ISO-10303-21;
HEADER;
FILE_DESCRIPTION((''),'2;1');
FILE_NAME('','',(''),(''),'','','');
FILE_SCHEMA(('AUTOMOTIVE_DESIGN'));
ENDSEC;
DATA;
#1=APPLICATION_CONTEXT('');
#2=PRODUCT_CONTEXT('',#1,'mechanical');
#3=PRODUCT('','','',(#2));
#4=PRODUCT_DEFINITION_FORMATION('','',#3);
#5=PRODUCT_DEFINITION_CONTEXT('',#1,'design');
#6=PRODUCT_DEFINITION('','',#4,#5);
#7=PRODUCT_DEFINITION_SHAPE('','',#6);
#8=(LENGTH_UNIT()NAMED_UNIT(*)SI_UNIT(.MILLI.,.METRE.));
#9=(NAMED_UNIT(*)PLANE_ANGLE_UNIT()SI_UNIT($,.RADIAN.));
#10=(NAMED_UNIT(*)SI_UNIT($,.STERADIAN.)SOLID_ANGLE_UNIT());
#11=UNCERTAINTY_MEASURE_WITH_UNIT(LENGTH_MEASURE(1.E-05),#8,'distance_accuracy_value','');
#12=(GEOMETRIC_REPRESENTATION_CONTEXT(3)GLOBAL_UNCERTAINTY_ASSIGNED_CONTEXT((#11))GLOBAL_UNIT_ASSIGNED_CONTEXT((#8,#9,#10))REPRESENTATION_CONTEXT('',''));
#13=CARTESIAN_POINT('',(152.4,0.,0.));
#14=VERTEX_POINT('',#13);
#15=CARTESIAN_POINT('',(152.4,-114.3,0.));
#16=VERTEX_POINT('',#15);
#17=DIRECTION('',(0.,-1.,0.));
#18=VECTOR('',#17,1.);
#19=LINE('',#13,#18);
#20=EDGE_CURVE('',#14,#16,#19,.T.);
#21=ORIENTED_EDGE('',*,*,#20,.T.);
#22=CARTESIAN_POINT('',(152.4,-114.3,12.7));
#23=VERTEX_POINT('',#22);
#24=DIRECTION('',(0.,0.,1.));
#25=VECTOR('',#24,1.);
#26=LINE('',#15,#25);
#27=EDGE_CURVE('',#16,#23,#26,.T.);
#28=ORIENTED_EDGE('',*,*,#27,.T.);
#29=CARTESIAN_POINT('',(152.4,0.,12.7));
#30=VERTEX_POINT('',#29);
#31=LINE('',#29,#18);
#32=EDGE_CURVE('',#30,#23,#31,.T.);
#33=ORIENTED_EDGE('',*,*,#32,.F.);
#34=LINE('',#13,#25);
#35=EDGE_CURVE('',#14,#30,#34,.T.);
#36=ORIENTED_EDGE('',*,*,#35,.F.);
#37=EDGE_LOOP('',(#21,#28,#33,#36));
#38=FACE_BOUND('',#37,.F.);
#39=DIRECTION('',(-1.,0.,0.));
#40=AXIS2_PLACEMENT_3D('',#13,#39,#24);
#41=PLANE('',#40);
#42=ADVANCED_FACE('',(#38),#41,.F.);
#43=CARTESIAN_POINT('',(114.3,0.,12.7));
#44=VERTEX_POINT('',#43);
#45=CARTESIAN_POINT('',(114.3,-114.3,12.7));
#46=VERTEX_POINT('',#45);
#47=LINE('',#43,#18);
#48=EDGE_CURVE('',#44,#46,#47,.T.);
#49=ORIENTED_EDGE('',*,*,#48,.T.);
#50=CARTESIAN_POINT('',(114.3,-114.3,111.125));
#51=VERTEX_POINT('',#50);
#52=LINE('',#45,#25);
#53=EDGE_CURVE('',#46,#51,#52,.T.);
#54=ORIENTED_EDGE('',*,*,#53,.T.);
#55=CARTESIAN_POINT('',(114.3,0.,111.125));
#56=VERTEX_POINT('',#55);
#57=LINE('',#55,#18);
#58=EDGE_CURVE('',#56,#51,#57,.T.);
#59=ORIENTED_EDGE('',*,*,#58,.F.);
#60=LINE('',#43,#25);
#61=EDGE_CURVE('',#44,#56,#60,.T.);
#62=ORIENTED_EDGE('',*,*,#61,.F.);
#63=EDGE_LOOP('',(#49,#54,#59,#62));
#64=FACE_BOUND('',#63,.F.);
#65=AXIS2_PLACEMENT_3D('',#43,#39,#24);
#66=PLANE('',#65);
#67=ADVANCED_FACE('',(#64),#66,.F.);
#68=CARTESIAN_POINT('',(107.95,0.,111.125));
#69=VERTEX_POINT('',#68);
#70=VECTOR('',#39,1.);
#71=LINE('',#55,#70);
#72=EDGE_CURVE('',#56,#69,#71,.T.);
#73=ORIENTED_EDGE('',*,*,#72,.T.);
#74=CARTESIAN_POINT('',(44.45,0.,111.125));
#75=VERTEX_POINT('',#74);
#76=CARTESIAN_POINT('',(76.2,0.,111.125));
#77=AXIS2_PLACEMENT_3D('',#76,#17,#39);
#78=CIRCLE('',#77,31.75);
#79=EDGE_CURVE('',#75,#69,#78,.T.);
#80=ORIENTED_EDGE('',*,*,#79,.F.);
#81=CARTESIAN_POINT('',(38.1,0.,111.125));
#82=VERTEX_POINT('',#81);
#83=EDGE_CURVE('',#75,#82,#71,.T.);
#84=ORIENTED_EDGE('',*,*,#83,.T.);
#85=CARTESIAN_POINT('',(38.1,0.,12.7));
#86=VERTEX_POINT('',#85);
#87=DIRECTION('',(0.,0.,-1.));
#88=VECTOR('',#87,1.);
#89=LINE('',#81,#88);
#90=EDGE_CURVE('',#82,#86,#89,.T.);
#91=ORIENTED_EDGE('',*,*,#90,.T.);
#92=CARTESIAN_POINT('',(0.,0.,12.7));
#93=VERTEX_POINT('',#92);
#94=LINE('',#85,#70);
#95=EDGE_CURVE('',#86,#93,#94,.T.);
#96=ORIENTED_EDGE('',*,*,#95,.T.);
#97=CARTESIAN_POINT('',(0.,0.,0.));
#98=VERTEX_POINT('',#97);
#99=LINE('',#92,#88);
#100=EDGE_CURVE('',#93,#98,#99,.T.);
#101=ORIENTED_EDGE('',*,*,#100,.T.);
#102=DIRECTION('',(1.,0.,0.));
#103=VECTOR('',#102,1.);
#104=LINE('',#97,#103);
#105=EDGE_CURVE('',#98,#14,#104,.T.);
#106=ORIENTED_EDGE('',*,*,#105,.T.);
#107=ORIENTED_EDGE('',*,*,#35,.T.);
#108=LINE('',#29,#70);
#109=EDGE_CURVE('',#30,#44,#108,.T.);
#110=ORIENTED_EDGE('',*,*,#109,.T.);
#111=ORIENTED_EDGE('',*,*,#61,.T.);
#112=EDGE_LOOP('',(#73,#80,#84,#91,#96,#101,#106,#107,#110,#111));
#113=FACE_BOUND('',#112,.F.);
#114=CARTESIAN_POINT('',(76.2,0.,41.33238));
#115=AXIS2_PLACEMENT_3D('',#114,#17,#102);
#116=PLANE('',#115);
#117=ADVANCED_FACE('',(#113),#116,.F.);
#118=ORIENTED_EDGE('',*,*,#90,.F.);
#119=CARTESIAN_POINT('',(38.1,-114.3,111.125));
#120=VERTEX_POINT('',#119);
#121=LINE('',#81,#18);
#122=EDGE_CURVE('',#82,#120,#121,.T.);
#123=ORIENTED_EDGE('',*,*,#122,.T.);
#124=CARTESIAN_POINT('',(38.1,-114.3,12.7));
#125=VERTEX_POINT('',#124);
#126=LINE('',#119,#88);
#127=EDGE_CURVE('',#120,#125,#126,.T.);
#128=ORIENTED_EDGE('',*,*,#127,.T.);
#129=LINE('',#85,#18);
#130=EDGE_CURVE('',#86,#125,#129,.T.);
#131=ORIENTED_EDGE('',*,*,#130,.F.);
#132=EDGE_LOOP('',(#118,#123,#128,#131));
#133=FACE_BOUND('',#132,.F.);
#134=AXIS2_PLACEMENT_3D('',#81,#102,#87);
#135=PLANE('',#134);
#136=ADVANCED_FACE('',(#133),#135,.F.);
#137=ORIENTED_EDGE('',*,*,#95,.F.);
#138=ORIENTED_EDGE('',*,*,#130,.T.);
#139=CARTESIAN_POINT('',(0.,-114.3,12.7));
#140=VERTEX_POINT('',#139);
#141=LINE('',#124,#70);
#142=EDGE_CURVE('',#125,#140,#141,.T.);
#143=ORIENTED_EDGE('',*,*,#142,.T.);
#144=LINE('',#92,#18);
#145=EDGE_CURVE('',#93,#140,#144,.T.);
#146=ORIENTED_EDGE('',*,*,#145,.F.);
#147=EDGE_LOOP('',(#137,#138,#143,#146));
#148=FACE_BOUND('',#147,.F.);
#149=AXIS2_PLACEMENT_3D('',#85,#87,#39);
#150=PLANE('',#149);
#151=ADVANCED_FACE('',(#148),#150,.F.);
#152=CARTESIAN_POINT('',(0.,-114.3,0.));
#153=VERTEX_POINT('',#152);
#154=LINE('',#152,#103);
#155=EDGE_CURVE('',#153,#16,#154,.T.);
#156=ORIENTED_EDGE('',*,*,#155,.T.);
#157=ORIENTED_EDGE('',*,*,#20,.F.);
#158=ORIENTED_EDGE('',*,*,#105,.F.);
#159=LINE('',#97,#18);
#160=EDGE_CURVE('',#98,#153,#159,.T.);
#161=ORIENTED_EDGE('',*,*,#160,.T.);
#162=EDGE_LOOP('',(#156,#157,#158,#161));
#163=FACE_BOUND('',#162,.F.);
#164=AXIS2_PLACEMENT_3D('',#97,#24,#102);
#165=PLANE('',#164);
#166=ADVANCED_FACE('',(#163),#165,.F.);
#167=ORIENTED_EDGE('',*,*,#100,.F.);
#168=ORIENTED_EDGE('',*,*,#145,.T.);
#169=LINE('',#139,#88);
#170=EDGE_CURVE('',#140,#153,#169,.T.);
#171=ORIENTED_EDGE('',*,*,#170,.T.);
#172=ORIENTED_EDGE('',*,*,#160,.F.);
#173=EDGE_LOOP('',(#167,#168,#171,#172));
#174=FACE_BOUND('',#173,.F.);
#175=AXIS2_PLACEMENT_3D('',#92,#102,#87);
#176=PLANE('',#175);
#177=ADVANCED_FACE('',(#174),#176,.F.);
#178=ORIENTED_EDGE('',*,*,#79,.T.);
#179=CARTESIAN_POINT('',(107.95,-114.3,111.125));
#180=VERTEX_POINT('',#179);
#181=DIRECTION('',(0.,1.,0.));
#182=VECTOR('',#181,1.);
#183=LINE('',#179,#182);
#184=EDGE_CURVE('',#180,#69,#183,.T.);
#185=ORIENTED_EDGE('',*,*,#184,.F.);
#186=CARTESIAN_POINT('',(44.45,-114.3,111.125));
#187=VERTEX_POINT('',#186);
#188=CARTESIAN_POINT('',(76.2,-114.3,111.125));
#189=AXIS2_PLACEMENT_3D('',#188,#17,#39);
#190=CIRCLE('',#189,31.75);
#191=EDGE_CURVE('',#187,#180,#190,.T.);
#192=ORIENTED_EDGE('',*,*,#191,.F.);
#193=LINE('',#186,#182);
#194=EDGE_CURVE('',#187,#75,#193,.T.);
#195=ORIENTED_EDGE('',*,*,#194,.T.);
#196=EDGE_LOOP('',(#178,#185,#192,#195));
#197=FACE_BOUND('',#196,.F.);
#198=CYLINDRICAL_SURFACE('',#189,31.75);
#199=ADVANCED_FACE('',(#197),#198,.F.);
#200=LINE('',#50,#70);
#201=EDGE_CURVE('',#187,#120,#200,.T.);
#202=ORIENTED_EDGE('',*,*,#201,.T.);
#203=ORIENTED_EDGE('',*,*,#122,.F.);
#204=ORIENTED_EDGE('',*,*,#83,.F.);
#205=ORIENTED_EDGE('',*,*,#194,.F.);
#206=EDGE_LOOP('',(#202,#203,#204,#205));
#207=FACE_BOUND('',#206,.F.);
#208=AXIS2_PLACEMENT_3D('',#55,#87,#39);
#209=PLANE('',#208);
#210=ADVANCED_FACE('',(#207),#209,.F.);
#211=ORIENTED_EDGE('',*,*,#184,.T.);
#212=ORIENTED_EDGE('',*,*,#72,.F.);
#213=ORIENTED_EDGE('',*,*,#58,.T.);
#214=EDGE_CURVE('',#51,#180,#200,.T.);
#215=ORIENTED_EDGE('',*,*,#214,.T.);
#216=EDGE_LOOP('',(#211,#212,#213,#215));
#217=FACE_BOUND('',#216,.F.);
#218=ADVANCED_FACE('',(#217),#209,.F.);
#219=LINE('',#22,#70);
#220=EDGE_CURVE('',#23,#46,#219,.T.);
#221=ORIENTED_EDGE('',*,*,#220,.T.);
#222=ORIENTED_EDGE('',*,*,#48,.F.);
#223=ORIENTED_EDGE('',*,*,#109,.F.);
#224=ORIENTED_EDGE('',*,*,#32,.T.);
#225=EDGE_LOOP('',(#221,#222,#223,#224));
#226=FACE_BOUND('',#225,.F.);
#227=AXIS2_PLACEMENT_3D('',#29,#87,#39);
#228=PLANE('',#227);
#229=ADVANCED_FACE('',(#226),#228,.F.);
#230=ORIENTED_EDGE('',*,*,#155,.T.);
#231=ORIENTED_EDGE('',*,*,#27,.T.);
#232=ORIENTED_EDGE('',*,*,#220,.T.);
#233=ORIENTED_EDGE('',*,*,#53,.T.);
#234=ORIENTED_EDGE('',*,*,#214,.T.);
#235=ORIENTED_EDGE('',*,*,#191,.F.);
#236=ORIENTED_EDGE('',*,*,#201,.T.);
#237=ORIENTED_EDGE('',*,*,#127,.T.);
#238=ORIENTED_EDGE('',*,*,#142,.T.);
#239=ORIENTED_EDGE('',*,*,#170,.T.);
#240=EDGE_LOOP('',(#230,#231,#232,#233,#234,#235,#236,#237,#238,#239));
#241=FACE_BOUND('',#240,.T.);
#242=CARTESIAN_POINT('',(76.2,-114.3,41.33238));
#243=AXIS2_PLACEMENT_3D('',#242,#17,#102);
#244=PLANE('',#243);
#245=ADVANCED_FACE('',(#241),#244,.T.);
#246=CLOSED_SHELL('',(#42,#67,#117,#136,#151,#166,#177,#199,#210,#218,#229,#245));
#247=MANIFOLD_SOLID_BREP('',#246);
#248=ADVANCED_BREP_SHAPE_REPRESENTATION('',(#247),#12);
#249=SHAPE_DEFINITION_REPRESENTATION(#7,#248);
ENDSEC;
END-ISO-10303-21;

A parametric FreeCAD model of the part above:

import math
import FreeCAD as App
import Part
import Sketcher

V = App.Vector
Q = App.Units.Quantity

doc = App.newDocument("Part")
body = doc.addObject("PartDesign::Body", "Body")

# Sketch on XZ plane
sketch1 = body.newObject("Sketcher::SketchObject", "Sketch")
sketch1.AttachmentSupport = (doc.getObject("XZ_Plane"), [""])
sketch1.MapMode = "FlatFace"
sketch1.addGeometry([
    Part.LineSegment(V(0, 12.7, 0), V(0, 0, 0)),  # 0
    Part.LineSegment(V(0, 0, 0), V(152.4, 0, 0)),  # 1
    Part.LineSegment(V(152.4, 0, 0), V(152.4, 12.7, 0)),  # 2
    Part.LineSegment(V(152.4, 12.7, 0), V(114.3, 12.7, 0)),  # 3
    Part.LineSegment(V(114.3, 12.7, 0), V(114.3, 111.125, 0)),  # 4
    Part.LineSegment(V(114.3, 111.125, 0), V(38.1, 111.125, 0)),  # 5
    Part.LineSegment(V(38.1, 111.125, 0), V(38.1, 12.7, 0)),  # 6
    Part.LineSegment(V(38.1, 12.7, 0), V(0, 12.7, 0)),  # 7
], False)
sketch1.addConstraint([
    Sketcher.Constraint("Coincident", 0, 2, 1, 1),
    Sketcher.Constraint("Coincident", 1, 2, 2, 1),
    Sketcher.Constraint("Coincident", 2, 2, 3, 1),
    Sketcher.Constraint("Coincident", 3, 2, 4, 1),
    Sketcher.Constraint("Coincident", 4, 2, 5, 1),
    Sketcher.Constraint("Coincident", 5, 2, 6, 1),
    Sketcher.Constraint("Coincident", 6, 2, 7, 1),
    Sketcher.Constraint("Coincident", 7, 2, 0, 1),
    Sketcher.Constraint("Vertical", 0),
    Sketcher.Constraint("Horizontal", 1),
    Sketcher.Constraint("Vertical", 2),
    Sketcher.Constraint("Horizontal", 3),
    Sketcher.Constraint("Vertical", 4),
    Sketcher.Constraint("Horizontal", 5),
    Sketcher.Constraint("Vertical", 6),
    Sketcher.Constraint("Horizontal", 7),
    Sketcher.Constraint("Coincident", 0, 2, -1, 1),
    Sketcher.Constraint("Horizontal", 3, 2, 6, 2),
    Sketcher.Constraint("Equal", 3, 7),
    Sketcher.Constraint("DistanceX", 1, 1, 1, 2, Q("6 in")),
    Sketcher.Constraint("DistanceX", 5, 2, 5, 1, Q("3 in")),
    Sketcher.Constraint("DistanceY", 0, 2, 0, 1, Q("0.5 in")),
    Sketcher.Constraint("DistanceY", 4, 1, 4, 2, Q("3.875 in")),
])
pad1 = body.newObject("PartDesign::Pad", "Pad")
pad1.Profile = sketch1
pad1.Length = Q("4.5 in")

# Sketch on XZ plane
sketch2 = body.newObject("Sketcher::SketchObject", "Sketch001")
sketch2.AttachmentSupport = (doc.getObject("XZ_Plane"), [""])
sketch2.MapMode = "FlatFace"
sketch2.AttachmentOffset = App.Placement(V(0, 0, 4.5 * 25.4), App.Rotation())
sketch2.addGeometry([
    Part.LineSegment(V(107.95, 111.125, 0), V(44.45, 111.125, 0)),
    Part.ArcOfCircle(Part.Circle(V(76.2, 111.125, 0), V(0, 0, 1), 31.75), math.radians(180), math.radians(360)),
], False)
sketch2.addConstraint([
    Sketcher.Constraint("Coincident", 0, 1, 1, 2),
    Sketcher.Constraint("Coincident", 1, 1, 0, 2),
    Sketcher.Constraint("Horizontal", 0),
    Sketcher.Constraint("Horizontal", 1, 3, 0, 1),
    Sketcher.Constraint("Radius", 1, Q("1.25 in")),
    Sketcher.Constraint("DistanceX", -1, 1, 1, 3, Q("3 in")),
    Sketcher.Constraint("DistanceY", -1, 1, 1, 3, Q("4.375 in")),
])
pocket1 = body.newObject("PartDesign::Pocket", "Pocket")
pocket1.Profile = sketch2
pocket1.Type = "ThroughAll"

doc.recompute()
